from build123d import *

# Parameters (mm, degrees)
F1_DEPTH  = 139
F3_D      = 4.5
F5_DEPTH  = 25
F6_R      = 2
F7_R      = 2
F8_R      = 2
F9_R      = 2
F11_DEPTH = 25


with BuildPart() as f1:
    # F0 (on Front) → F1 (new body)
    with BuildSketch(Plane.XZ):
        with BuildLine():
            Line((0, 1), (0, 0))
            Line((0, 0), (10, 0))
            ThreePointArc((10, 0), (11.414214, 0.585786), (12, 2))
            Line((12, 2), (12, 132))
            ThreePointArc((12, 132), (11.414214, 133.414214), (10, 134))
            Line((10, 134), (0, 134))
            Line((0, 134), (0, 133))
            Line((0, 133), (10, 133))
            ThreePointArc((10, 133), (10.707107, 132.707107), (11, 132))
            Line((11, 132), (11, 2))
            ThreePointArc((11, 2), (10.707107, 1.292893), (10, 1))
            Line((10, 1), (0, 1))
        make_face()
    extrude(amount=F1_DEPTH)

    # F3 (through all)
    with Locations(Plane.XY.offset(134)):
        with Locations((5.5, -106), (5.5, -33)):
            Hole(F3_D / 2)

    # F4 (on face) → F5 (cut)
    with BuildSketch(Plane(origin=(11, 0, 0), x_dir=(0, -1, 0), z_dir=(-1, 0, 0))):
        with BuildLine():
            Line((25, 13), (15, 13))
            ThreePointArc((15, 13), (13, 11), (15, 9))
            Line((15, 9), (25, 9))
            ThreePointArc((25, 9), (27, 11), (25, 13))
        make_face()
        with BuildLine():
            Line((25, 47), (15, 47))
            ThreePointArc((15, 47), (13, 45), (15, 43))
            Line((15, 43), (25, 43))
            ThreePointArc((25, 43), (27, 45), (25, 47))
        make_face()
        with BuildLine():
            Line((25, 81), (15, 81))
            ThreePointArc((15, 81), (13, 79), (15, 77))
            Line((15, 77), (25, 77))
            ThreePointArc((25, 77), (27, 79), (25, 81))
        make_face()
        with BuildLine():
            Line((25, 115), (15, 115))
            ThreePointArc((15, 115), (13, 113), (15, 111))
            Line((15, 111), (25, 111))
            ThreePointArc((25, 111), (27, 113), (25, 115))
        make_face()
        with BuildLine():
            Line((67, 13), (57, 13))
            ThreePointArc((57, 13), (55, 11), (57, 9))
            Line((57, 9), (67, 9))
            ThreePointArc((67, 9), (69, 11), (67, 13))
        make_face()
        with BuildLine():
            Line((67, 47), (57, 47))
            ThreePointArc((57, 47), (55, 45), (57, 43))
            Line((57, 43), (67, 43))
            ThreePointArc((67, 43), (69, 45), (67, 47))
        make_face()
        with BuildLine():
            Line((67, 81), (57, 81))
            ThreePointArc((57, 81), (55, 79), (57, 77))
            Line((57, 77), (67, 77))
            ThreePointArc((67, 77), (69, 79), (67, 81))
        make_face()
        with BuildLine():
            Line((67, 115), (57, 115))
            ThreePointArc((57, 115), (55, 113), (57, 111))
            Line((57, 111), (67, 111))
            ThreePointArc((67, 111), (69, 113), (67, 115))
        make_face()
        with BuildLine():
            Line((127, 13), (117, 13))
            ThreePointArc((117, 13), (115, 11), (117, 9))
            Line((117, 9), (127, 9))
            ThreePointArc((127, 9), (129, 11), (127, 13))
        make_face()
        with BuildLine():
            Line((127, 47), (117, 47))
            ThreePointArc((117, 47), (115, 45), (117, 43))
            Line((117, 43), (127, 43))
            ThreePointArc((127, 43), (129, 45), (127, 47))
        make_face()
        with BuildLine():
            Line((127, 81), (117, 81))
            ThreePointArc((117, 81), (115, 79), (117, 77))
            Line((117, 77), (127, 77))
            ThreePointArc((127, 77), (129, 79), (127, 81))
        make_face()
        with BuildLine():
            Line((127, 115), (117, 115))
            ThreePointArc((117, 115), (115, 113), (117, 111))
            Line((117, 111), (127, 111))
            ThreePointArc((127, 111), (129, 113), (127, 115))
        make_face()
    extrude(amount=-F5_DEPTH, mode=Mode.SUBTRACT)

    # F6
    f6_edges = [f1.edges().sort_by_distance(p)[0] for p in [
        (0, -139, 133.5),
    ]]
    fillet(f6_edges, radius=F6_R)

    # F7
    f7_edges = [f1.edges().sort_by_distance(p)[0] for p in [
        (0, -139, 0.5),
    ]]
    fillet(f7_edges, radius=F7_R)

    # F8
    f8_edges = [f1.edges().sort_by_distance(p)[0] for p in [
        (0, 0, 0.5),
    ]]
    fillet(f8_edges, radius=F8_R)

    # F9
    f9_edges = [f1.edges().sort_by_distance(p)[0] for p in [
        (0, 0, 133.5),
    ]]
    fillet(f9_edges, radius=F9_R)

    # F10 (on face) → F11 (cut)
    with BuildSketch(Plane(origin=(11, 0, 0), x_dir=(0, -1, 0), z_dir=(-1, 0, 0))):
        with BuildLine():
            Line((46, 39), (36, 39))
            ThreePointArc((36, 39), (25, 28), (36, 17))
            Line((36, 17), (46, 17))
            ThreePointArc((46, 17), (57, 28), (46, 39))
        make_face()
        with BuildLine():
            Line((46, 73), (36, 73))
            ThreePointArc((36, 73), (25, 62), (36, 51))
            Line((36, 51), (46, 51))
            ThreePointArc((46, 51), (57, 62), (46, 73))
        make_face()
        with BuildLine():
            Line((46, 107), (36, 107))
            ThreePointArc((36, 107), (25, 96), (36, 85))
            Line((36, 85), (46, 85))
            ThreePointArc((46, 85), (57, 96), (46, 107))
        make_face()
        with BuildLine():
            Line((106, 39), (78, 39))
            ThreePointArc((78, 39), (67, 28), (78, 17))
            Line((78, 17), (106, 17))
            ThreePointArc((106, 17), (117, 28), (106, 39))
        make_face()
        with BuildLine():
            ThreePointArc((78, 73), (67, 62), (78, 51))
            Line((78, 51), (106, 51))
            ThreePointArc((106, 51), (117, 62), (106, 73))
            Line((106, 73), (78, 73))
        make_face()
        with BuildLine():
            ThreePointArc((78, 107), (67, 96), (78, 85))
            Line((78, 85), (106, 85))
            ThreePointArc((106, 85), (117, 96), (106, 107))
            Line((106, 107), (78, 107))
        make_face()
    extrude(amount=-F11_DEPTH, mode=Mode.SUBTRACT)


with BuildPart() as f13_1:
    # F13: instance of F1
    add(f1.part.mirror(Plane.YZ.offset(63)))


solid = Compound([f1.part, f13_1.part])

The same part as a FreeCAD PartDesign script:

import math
import FreeCAD as App
import Part
import Sketcher

V = App.Vector
Q = App.Units.Quantity


def edges_at(feature, points):
    """Names of the edges that pass closest to the given points."""
    edges = feature.Shape.Edges
    near = lambda p: min(range(len(edges)), key=lambda i: edges[i].distToShape(Part.Vertex(*p))[0])
    return sorted({f"Edge{near(p) + 1}" for p in points})

doc = App.newDocument("Part")
body = doc.addObject("PartDesign::Body", "Body")

# Sketch on XZ plane
sketch1 = doc.addObject("Sketcher::SketchObject", "Sketch")
body.addObject(sketch1)
sketch1.AttachmentSupport = (doc.XZ_Plane, [""])
sketch1.MapMode = "FlatFace"
sketch1.addGeometry(Part.LineSegment(V(0, 1, 0), V(0, 0, 0)), False)
sketch1.addGeometry(Part.LineSegment(V(0, 0, 0), V(10, 0, 0)), False)
sketch1.addGeometry(Part.ArcOfCircle(Part.Circle(V(10.000001, 1.999999, 0), V(0, 0, 1), 1.999999), math.radians(-90.000043), math.radians(0.000043)), False)
sketch1.addGeometry(Part.LineSegment(V(12, 2, 0), V(12, 132, 0)), False)
sketch1.addGeometry(Part.ArcOfCircle(Part.Circle(V(10.000001, 132.000001, 0), V(0, 0, 1), 1.999999), math.radians(-0.000043), math.radians(90.000043)), False)
sketch1.addGeometry(Part.LineSegment(V(10, 134, 0), V(0, 134, 0)), False)
sketch1.addGeometry(Part.LineSegment(V(0, 134, 0), V(0, 133, 0)), False)
sketch1.addGeometry(Part.LineSegment(V(0, 133, 0), V(10, 133, 0)), False)
sketch1.addGeometry(Part.ArcOfCircle(Part.Circle(V(10.000001, 132.000001, 0), V(0, 0, 1), 0.999999), math.radians(-0.000043), math.radians(90.000043)), False)
sketch1.addGeometry(Part.LineSegment(V(11, 132, 0), V(11, 2, 0)), False)
sketch1.addGeometry(Part.ArcOfCircle(Part.Circle(V(10.000001, 1.999999, 0), V(0, 0, 1), 0.999999), math.radians(-90.000043), math.radians(0.000043)), False)
sketch1.addGeometry(Part.LineSegment(V(10, 1, 0), V(0, 1, 0)), False)
sketch1.addConstraint(Sketcher.Constraint("Coincident", 0, 2, 1, 1))
sketch1.addConstraint(Sketcher.Constraint("Tangent", 1, 2, 2, 1))
sketch1.addConstraint(Sketcher.Constraint("Tangent", 2, 2, 3, 1))
sketch1.addConstraint(Sketcher.Constraint("Tangent", 3, 2, 4, 1))
sketch1.addConstraint(Sketcher.Constraint("Tangent", 4, 2, 5, 1))
sketch1.addConstraint(Sketcher.Constraint("Coincident", 5, 2, 6, 1))
sketch1.addConstraint(Sketcher.Constraint("Coincident", 6, 2, 7, 1))
sketch1.addConstraint(Sketcher.Constraint("Tangent", 7, 2, 8, 2))
sketch1.addConstraint(Sketcher.Constraint("Tangent", 8, 1, 9, 1))
sketch1.addConstraint(Sketcher.Constraint("Tangent", 9, 2, 10, 2))
sketch1.addConstraint(Sketcher.Constraint("Tangent", 10, 1, 11, 1))
sketch1.addConstraint(Sketcher.Constraint("Coincident", 11, 2, 0, 1))
sketch1.addConstraint(Sketcher.Constraint("Vertical", 0))
sketch1.addConstraint(Sketcher.Constraint("Horizontal", 1))
sketch1.addConstraint(Sketcher.Constraint("Vertical", 3))
sketch1.addConstraint(Sketcher.Constraint("Horizontal", 5))
sketch1.addConstraint(Sketcher.Constraint("Vertical", 6))
sketch1.addConstraint(Sketcher.Constraint("Horizontal", 7))
sketch1.addConstraint(Sketcher.Constraint("Vertical", 9))
sketch1.addConstraint(Sketcher.Constraint("Horizontal", 11))
sketch1.addConstraint(Sketcher.Constraint("Coincident", 0, 2, -1, 1))
sketch1.addConstraint(Sketcher.Constraint("Coincident", 8, 3, 4, 3))
sketch1.addConstraint(Sketcher.Constraint("Coincident", 10, 3, 2, 3))
sketch1.addConstraint(Sketcher.Constraint("Equal", 2, 4))
sketch1.addConstraint(Sketcher.Constraint("PointOnObject", 5, 2, -2))
sketch1.addConstraint(Sketcher.Constraint("Radius", 2, Q("1.999999 mm")))
sketch1.addConstraint(Sketcher.Constraint("Radius", 8, Q("0.999999 mm")))
sketch1.addConstraint(Sketcher.Constraint("DistanceX", 1, 1, 1, 2, Q("10 mm")))
sketch1.addConstraint(Sketcher.Constraint("DistanceY", 3, 1, 3, 2, Q("130 mm")))
pad1 = doc.addObject("PartDesign::Pad", "Pad")
body.addObject(pad1)
pad1.Profile = sketch1
pad1.Length = 139

# Sketch on XY plane
sketch2 = doc.addObject("Sketcher::SketchObject", "Sketch001")
body.addObject(sketch2)
sketch2.AttachmentSupport = (doc.XY_Plane, [""])
sketch2.MapMode = "FlatFace"
sketch2.AttachmentOffset = App.Placement(V(0, 0, 134), App.Rotation())
sketch2.addGeometry(Part.Circle(V(5.5, -106, 0), V(0, 0, 1), 2.25), False)
sketch2.addGeometry(Part.Circle(V(5.5, -33, 0), V(0, 0, 1), 2.25), False)
sketch2.addConstraint(Sketcher.Constraint("Equal", 0, 1))
sketch2.addConstraint(Sketcher.Constraint("Vertical", 0, 3, 1, 3))
sketch2.addConstraint(Sketcher.Constraint("Diameter", 0, Q("4.5 mm")))
sketch2.addConstraint(Sketcher.Constraint("DistanceY", 0, 3, -1, 1, Q("106 mm")))
sketch2.addConstraint(Sketcher.Constraint("DistanceY", 1, 3, -1, 1, Q("33 mm")))
sketch2.addConstraint(Sketcher.Constraint("DistanceX", -1, 1, 0, 3, Q("5.5 mm")))
doc.recompute()
hole = doc.addObject("PartDesign::Hole", "Hole")
body.addObject(hole)
hole.Profile = sketch2
hole.ThreadType = "None"
hole.Diameter = 4.5
hole.DepthType = "ThroughAll"

# Sketch on YZ plane
sketch3 = doc.addObject("Sketcher::SketchObject", "Sketch002")
body.addObject(sketch3)
sketch3.AttachmentSupport = (doc.YZ_Plane, [""])
sketch3.MapMode = "FlatFace"
sketch3.AttachmentOffset = App.Placement(V(0, 0, 11), App.Rotation())
sketch3.addGeometry(Part.LineSegment(V(-25, 13, 0), V(-15, 13, 0)), False)
sketch3.addGeometry(Part.ArcOfCircle(Part.Circle(V(-15, 11, 0), V(0, 0, 1), 2), math.radians(-90), math.radians(90)), False)
sketch3.addGeometry(Part.LineSegment(V(-15, 9, 0), V(-25, 9, 0)), False)
sketch3.addGeometry(Part.ArcOfCircle(Part.Circle(V(-25, 11, 0), V(0, 0, 1), 2), math.radians(90), math.radians(270)), False)
sketch3.addGeometry(Part.LineSegment(V(-25, 47, 0), V(-15, 47, 0)), False)
sketch3.addGeometry(Part.ArcOfCircle(Part.Circle(V(-15, 45, 0), V(0, 0, 1), 2), math.radians(-90), math.radians(90)), False)
sketch3.addGeometry(Part.LineSegment(V(-15, 43, 0), V(-25, 43, 0)), False)
sketch3.addGeometry(Part.ArcOfCircle(Part.Circle(V(-25, 45, 0), V(0, 0, 1), 2), math.radians(90), math.radians(270)), False)
sketch3.addGeometry(Part.LineSegment(V(-25, 81, 0), V(-15, 81, 0)), False)
sketch3.addGeometry(Part.ArcOfCircle(Part.Circle(V(-15, 79, 0), V(0, 0, 1), 2), math.radians(-90), math.radians(90)), False)
sketch3.addGeometry(Part.LineSegment(V(-15, 77, 0), V(-25, 77, 0)), False)
sketch3.addGeometry(Part.ArcOfCircle(Part.Circle(V(-25, 79, 0), V(0, 0, 1), 2), math.radians(90), math.radians(270)), False)
sketch3.addGeometry(Part.LineSegment(V(-25, 115, 0), V(-15, 115, 0)), False)
sketch3.addGeometry(Part.ArcOfCircle(Part.Circle(V(-15, 113, 0), V(0, 0, 1), 2), math.radians(-90), math.radians(90)), False)
sketch3.addGeometry(Part.LineSegment(V(-15, 111, 0), V(-25, 111, 0)), False)
sketch3.addGeometry(Part.ArcOfCircle(Part.Circle(V(-25, 113, 0), V(0, 0, 1), 2), math.radians(90), math.radians(270)), False)
sketch3.addGeometry(Part.LineSegment(V(-67, 13, 0), V(-57, 13, 0)), False)
sketch3.addGeometry(Part.ArcOfCircle(Part.Circle(V(-57, 11, 0), V(0, 0, 1), 2), math.radians(-90), math.radians(90)), False)
sketch3.addGeometry(Part.LineSegment(V(-57, 9, 0), V(-67, 9, 0)), False)
sketch3.addGeometry(Part.ArcOfCircle(Part.Circle(V(-67, 11, 0), V(0, 0, 1), 2), math.radians(90), math.radians(270)), False)
sketch3.addGeometry(Part.LineSegment(V(-67, 47, 0), V(-57, 47, 0)), False)
sketch3.addGeometry(Part.ArcOfCircle(Part.Circle(V(-57, 45, 0), V(0, 0, 1), 2), math.radians(-90), math.radians(90)), False)
sketch3.addGeometry(Part.LineSegment(V(-57, 43, 0), V(-67, 43, 0)), False)
sketch3.addGeometry(Part.ArcOfCircle(Part.Circle(V(-67, 45, 0), V(0, 0, 1), 2), math.radians(90), math.radians(270)), False)
sketch3.addGeometry(Part.LineSegment(V(-67, 81, 0), V(-57, 81, 0)), False)
sketch3.addGeometry(Part.ArcOfCircle(Part.Circle(V(-57, 79, 0), V(0, 0, 1), 2), math.radians(-90), math.radians(90)), False)
sketch3.addGeometry(Part.LineSegment(V(-57, 77, 0), V(-67, 77, 0)), False)
sketch3.addGeometry(Part.ArcOfCircle(Part.Circle(V(-67, 79, 0), V(0, 0, 1), 2), math.radians(90), math.radians(270)), False)
sketch3.addGeometry(Part.LineSegment(V(-67, 115, 0), V(-57, 115, 0)), False)
sketch3.addGeometry(Part.ArcOfCircle(Part.Circle(V(-57, 113, 0), V(0, 0, 1), 2), math.radians(-90), math.radians(90)), False)
sketch3.addGeometry(Part.LineSegment(V(-57, 111, 0), V(-67, 111, 0)), False)
sketch3.addGeometry(Part.ArcOfCircle(Part.Circle(V(-67, 113, 0), V(0, 0, 1), 2), math.radians(90), math.radians(270)), False)
sketch3.addGeometry(Part.LineSegment(V(-127, 13, 0), V(-117, 13, 0)), False)
sketch3.addGeometry(Part.ArcOfCircle(Part.Circle(V(-117, 11, 0), V(0, 0, 1), 2), math.radians(-90), math.radians(90)), False)
sketch3.addGeometry(Part.LineSegment(V(-117, 9, 0), V(-127, 9, 0)), False)
sketch3.addGeometry(Part.ArcOfCircle(Part.Circle(V(-127, 11, 0), V(0, 0, 1), 2), math.radians(90), math.radians(270)), False)
sketch3.addGeometry(Part.LineSegment(V(-127, 47, 0), V(-117, 47, 0)), False)
sketch3.addGeometry(Part.ArcOfCircle(Part.Circle(V(-117, 45, 0), V(0, 0, 1), 2), math.radians(-90), math.radians(90)), False)
sketch3.addGeometry(Part.LineSegment(V(-117, 43, 0), V(-127, 43, 0)), False)
sketch3.addGeometry(Part.ArcOfCircle(Part.Circle(V(-127, 45, 0), V(0, 0, 1), 2), math.radians(90), math.radians(270)), False)
sketch3.addGeometry(Part.LineSegment(V(-127, 81, 0), V(-117, 81, 0)), False)
sketch3.addGeometry(Part.ArcOfCircle(Part.Circle(V(-117, 79, 0), V(0, 0, 1), 2), math.radians(-90), math.radians(90)), False)
sketch3.addGeometry(Part.LineSegment(V(-117, 77, 0), V(-127, 77, 0)), False)
sketch3.addGeometry(Part.ArcOfCircle(Part.Circle(V(-127, 79, 0), V(0, 0, 1), 2), math.radians(90), math.radians(270)), False)
sketch3.addGeometry(Part.LineSegment(V(-127, 115, 0), V(-117, 115, 0)), False)
sketch3.addGeometry(Part.ArcOfCircle(Part.Circle(V(-117, 113, 0), V(0, 0, 1), 2), math.radians(-90), math.radians(90)), False)
sketch3.addGeometry(Part.LineSegment(V(-117, 111, 0), V(-127, 111, 0)), False)
sketch3.addGeometry(Part.ArcOfCircle(Part.Circle(V(-127, 113, 0), V(0, 0, 1), 2), math.radians(90), math.radians(270)), False)
sketch3.addConstraint(Sketcher.Constraint("Tangent", 0, 2, 1, 2))
sketch3.addConstraint(Sketcher.Constraint("Tangent", 1, 1, 2, 1))
sketch3.addConstraint(Sketcher.Constraint("Tangent", 2, 2, 3, 2))
sketch3.addConstraint(Sketcher.Constraint("Tangent", 3, 1, 0, 1))
sketch3.addConstraint(Sketcher.Constraint("Tangent", 4, 2, 5, 2))
sketch3.addConstraint(Sketcher.Constraint("Tangent", 5, 1, 6, 1))
sketch3.addConstraint(Sketcher.Constraint("Tangent", 6, 2, 7, 2))
sketch3.addConstraint(Sketcher.Constraint("Tangent", 7, 1, 4, 1))
sketch3.addConstraint(Sketcher.Constraint("Tangent", 8, 2, 9, 2))
sketch3.addConstraint(Sketcher.Constraint("Tangent", 9, 1, 10, 1))
sketch3.addConstraint(Sketcher.Constraint("Tangent", 10, 2, 11, 2))
sketch3.addConstraint(Sketcher.Constraint("Tangent", 11, 1, 8, 1))
sketch3.addConstraint(Sketcher.Constraint("Tangent", 12, 2, 13, 2))
sketch3.addConstraint(Sketcher.Constraint("Tangent", 13, 1, 14, 1))
sketch3.addConstraint(Sketcher.Constraint("Tangent", 14, 2, 15, 2))
sketch3.addConstraint(Sketcher.Constraint("Tangent", 15, 1, 12, 1))
sketch3.addConstraint(Sketcher.Constraint("Tangent", 16, 2, 17, 2))
sketch3.addConstraint(Sketcher.Constraint("Tangent", 17, 1, 18, 1))
sketch3.addConstraint(Sketcher.Constraint("Tangent", 18, 2, 19, 2))
sketch3.addConstraint(Sketcher.Constraint("Tangent", 19, 1, 16, 1))
sketch3.addConstraint(Sketcher.Constraint("Tangent", 20, 2, 21, 2))
sketch3.addConstraint(Sketcher.Constraint("Tangent", 21, 1, 22, 1))
sketch3.addConstraint(Sketcher.Constraint("Tangent", 22, 2, 23, 2))
sketch3.addConstraint(Sketcher.Constraint("Tangent", 23, 1, 20, 1))
sketch3.addConstraint(Sketcher.Constraint("Tangent", 24, 2, 25, 2))
sketch3.addConstraint(Sketcher.Constraint("Tangent", 25, 1, 26, 1))
sketch3.addConstraint(Sketcher.Constraint("Tangent", 26, 2, 27, 2))
sketch3.addConstraint(Sketcher.Constraint("Tangent", 27, 1, 24, 1))
sketch3.addConstraint(Sketcher.Constraint("Tangent", 28, 2, 29, 2))
sketch3.addConstraint(Sketcher.Constraint("Tangent", 29, 1, 30, 1))
sketch3.addConstraint(Sketcher.Constraint("Tangent", 30, 2, 31, 2))
sketch3.addConstraint(Sketcher.Constraint("Tangent", 31, 1, 28, 1))
sketch3.addConstraint(Sketcher.Constraint("Tangent", 32, 2, 33, 2))
sketch3.addConstraint(Sketcher.Constraint("Tangent", 33, 1, 34, 1))
sketch3.addConstraint(Sketcher.Constraint("Tangent", 34, 2, 35, 2))
sketch3.addConstraint(Sketcher.Constraint("Tangent", 35, 1, 32, 1))
sketch3.addConstraint(Sketcher.Constraint("Tangent", 36, 2, 37, 2))
sketch3.addConstraint(Sketcher.Constraint("Tangent", 37, 1, 38, 1))
sketch3.addConstraint(Sketcher.Constraint("Tangent", 38, 2, 39, 2))
sketch3.addConstraint(Sketcher.Constraint("Tangent", 39, 1, 36, 1))
sketch3.addConstraint(Sketcher.Constraint("Tangent", 40, 2, 41, 2))
sketch3.addConstraint(Sketcher.Constraint("Tangent", 41, 1, 42, 1))
sketch3.addConstraint(Sketcher.Constraint("Tangent", 42, 2, 43, 2))
sketch3.addConstraint(Sketcher.Constraint("Tangent", 43, 1, 40, 1))
sketch3.addConstraint(Sketcher.Constraint("Tangent", 44, 2, 45, 2))
sketch3.addConstraint(Sketcher.Constraint("Tangent", 45, 1, 46, 1))
sketch3.addConstraint(Sketcher.Constraint("Tangent", 46, 2, 47, 2))
sketch3.addConstraint(Sketcher.Constraint("Tangent", 47, 1, 44, 1))
sketch3.addConstraint(Sketcher.Constraint("Horizontal", 0))
sketch3.addConstraint(Sketcher.Constraint("Horizontal", 2))
sketch3.addConstraint(Sketcher.Constraint("Horizontal", 4))
sketch3.addConstraint(Sketcher.Constraint("Horizontal", 6))
sketch3.addConstraint(Sketcher.Constraint("Horizontal", 8))
sketch3.addConstraint(Sketcher.Constraint("Horizontal", 10))
sketch3.addConstraint(Sketcher.Constraint("Horizontal", 12))
sketch3.addConstraint(Sketcher.Constraint("Horizontal", 14))
sketch3.addConstraint(Sketcher.Constraint("Horizontal", 16))
sketch3.addConstraint(Sketcher.Constraint("Horizontal", 18))
sketch3.addConstraint(Sketcher.Constraint("Horizontal", 20))
sketch3.addConstraint(Sketcher.Constraint("Horizontal", 22))
sketch3.addConstraint(Sketcher.Constraint("Horizontal", 24))
sketch3.addConstraint(Sketcher.Constraint("Horizontal", 26))
sketch3.addConstraint(Sketcher.Constraint("Horizontal", 28))
sketch3.addConstraint(Sketcher.Constraint("Horizontal", 30))
sketch3.addConstraint(Sketcher.Constraint("Horizontal", 32))
sketch3.addConstraint(Sketcher.Constraint("Horizontal", 34))
sketch3.addConstraint(Sketcher.Constraint("Horizontal", 36))
sketch3.addConstraint(Sketcher.Constraint("Horizontal", 38))
sketch3.addConstraint(Sketcher.Constraint("Horizontal", 40))
sketch3.addConstraint(Sketcher.Constraint("Horizontal", 42))
sketch3.addConstraint(Sketcher.Constraint("Horizontal", 44))
sketch3.addConstraint(Sketcher.Constraint("Horizontal", 46))
sketch3.addConstraint(Sketcher.Constraint("Equal", 3, 5))
sketch3.addConstraint(Sketcher.Constraint("Equal", 7, 9))
sketch3.addConstraint(Sketcher.Constraint("Equal", 11, 13))
sketch3.addConstraint(Sketcher.Constraint("Equal", 15, 17))
sketch3.addConstraint(Sketcher.Constraint("Equal", 19, 21))
sketch3.addConstraint(Sketcher.Constraint("Equal", 23, 25))
sketch3.addConstraint(Sketcher.Constraint("Equal", 27, 29))
sketch3.addConstraint(Sketcher.Constraint("Equal", 31, 33))
sketch3.addConstraint(Sketcher.Constraint("Equal", 35, 37))
sketch3.addConstraint(Sketcher.Constraint("Equal", 39, 41))
sketch3.addConstraint(Sketcher.Constraint("Equal", 43, 45))
sketch3.addConstraint(Sketcher.Constraint("Horizontal", 3, 3, 17, 3))
sketch3.addConstraint(Sketcher.Constraint("Horizontal", 7, 3, 21, 3))
sketch3.addConstraint(Sketcher.Constraint("Horizontal", 11, 3, 25, 3))
sketch3.addConstraint(Sketcher.Constraint("Horizontal", 15, 3, 29, 3))
sketch3.addConstraint(Sketcher.Constraint("Horizontal", 19, 3, 33, 3))
sketch3.addConstraint(Sketcher.Constraint("Horizontal", 23, 3, 37, 3))
sketch3.addConstraint(Sketcher.Constraint("Horizontal", 27, 3, 41, 3))
sketch3.addConstraint(Sketcher.Constraint("Horizontal", 31, 3, 45, 3))
sketch3.addConstraint(Sketcher.Constraint("Vertical", 1, 3, 5, 3))
sketch3.addConstraint(Sketcher.Constraint("Vertical", 3, 3, 7, 3))
sketch3.addConstraint(Sketcher.Constraint("Vertical", 5, 3, 9, 3))
sketch3.addConstraint(Sketcher.Constraint("Vertical", 7, 3, 11, 3))
sketch3.addConstraint(Sketcher.Constraint("Vertical", 9, 3, 13, 3))
sketch3.addConstraint(Sketcher.Constraint("Vertical", 11, 3, 15, 3))
sketch3.addConstraint(Sketcher.Constraint("Vertical", 17, 3, 21, 3))
sketch3.addConstraint(Sketcher.Constraint("Vertical", 19, 3, 23, 3))
sketch3.addConstraint(Sketcher.Constraint("Vertical", 21, 3, 25, 3))
sketch3.addConstraint(Sketcher.Constraint("Vertical", 23, 3, 27, 3))
sketch3.addConstraint(Sketcher.Constraint("Vertical", 25, 3, 29, 3))
sketch3.addConstraint(Sketcher.Constraint("Vertical", 27, 3, 31, 3))
sketch3.addConstraint(Sketcher.Constraint("Vertical", 33, 3, 37, 3))
sketch3.addConstraint(Sketcher.Constraint("Vertical", 35, 3, 39, 3))
sketch3.addConstraint(Sketcher.Constraint("Vertical", 37, 3, 41, 3))
sketch3.addConstraint(Sketcher.Constraint("Vertical", 39, 3, 43, 3))
sketch3.addConstraint(Sketcher.Constraint("Vertical", 41, 3, 45, 3))
sketch3.addConstraint(Sketcher.Constraint("Vertical", 43, 3, 47, 3))
sketch3.addConstraint(Sketcher.Constraint("Equal", 14, 16))
sketch3.addConstraint(Sketcher.Constraint("Equal", 30, 32))
sketch3.addConstraint(Sketcher.Constraint("Radius", 1, Q("2 mm")))
sketch3.addConstraint(Sketcher.Constraint("DistanceX", 0, 1, 0, 2, Q("10 mm")))
sketch3.addConstraint(Sketcher.Constraint("DistanceX", 1, 3, -1, 1, Q("15 mm")))
sketch3.addConstraint(Sketcher.Constraint("DistanceY", -1, 1, 1, 3, Q("11 mm")))
sketch3.addConstraint(Sketcher.Constraint("DistanceY", -1, 1, 5, 3, Q("45 mm")))
sketch3.addConstraint(Sketcher.Constraint("DistanceY", -1, 1, 9, 3, Q("79 mm")))
sketch3.addConstraint(Sketcher.Constraint("DistanceY", -1, 1, 13, 3, Q("113 mm")))
sketch3.addConstraint(Sketcher.Constraint("DistanceX", 17, 3, -1, 1, Q("57 mm")))
sketch3.addConstraint(Sketcher.Constraint("DistanceX", 33, 3, -1, 1, Q("117 mm")))
pocket1 = doc.addObject("PartDesign::Pocket", "Pocket")
body.addObject(pocket1)
pocket1.Profile = sketch3
pocket1.Length = 25
pocket1.Reversed = True
doc.recompute()

fillet = doc.addObject("PartDesign::Fillet", "Fillet")
body.addObject(fillet)
fillet.Base = (pocket1, edges_at(pocket1, [(0, -139, 133.5)]))
fillet.Radius = 2
doc.recompute()

fillet2 = doc.addObject("PartDesign::Fillet", "Fillet001")
body.addObject(fillet2)
fillet2.Base = (fillet, edges_at(fillet, [(0, -139, 0.5)]))
fillet2.Radius = 2
doc.recompute()

fillet3 = doc.addObject("PartDesign::Fillet", "Fillet002")
body.addObject(fillet3)
fillet3.Base = (fillet2, edges_at(fillet2, [(0, 0, 0.5)]))
fillet3.Radius = 2
doc.recompute()

fillet4 = doc.addObject("PartDesign::Fillet", "Fillet003")
body.addObject(fillet4)
fillet4.Base = (fillet3, edges_at(fillet3, [(0, 0, 133.5)]))
fillet4.Radius = 2

# Sketch on YZ plane
sketch4 = doc.addObject("Sketcher::SketchObject", "Sketch003")
body.addObject(sketch4)
sketch4.AttachmentSupport = (doc.YZ_Plane, [""])
sketch4.MapMode = "FlatFace"
sketch4.AttachmentOffset = App.Placement(V(0, 0, 11), App.Rotation())
sketch4.addGeometry(Part.LineSegment(V(-46, 39, 0), V(-36, 39, 0)), False)
sketch4.addGeometry(Part.ArcOfCircle(Part.Circle(V(-36, 28, 0), V(0, 0, 1), 11), math.radians(-90), math.radians(90)), False)
sketch4.addGeometry(Part.LineSegment(V(-36, 17, 0), V(-46, 17, 0)), False)
sketch4.addGeometry(Part.ArcOfCircle(Part.Circle(V(-46, 28, 0), V(0, 0, 1), 11), math.radians(90), math.radians(270)), False)
sketch4.addGeometry(Part.LineSegment(V(-46, 73, 0), V(-36, 73, 0)), False)
sketch4.addGeometry(Part.ArcOfCircle(Part.Circle(V(-36, 62, 0), V(0, 0, 1), 11), math.radians(-90), math.radians(90)), False)
sketch4.addGeometry(Part.LineSegment(V(-36, 51, 0), V(-46, 51, 0)), False)
sketch4.addGeometry(Part.ArcOfCircle(Part.Circle(V(-46, 62, 0), V(0, 0, 1), 11), math.radians(90), math.radians(270)), False)
sketch4.addGeometry(Part.LineSegment(V(-46, 107, 0), V(-36, 107, 0)), False)
sketch4.addGeometry(Part.ArcOfCircle(Part.Circle(V(-36, 96, 0), V(0, 0, 1), 11), math.radians(-90), math.radians(90)), False)
sketch4.addGeometry(Part.LineSegment(V(-36, 85, 0), V(-46, 85, 0)), False)
sketch4.addGeometry(Part.ArcOfCircle(Part.Circle(V(-46, 96, 0), V(0, 0, 1), 11), math.radians(90), math.radians(270)), False)
sketch4.addGeometry(Part.LineSegment(V(-106, 39, 0), V(-78, 39, 0)), False)
sketch4.addGeometry(Part.ArcOfCircle(Part.Circle(V(-78, 28, 0), V(0, 0, 1), 11), math.radians(-90), math.radians(90)), False)
sketch4.addGeometry(Part.LineSegment(V(-78, 17, 0), V(-106, 17, 0)), False)
sketch4.addGeometry(Part.ArcOfCircle(Part.Circle(V(-106, 28, 0), V(0, 0, 1), 11), math.radians(90), math.radians(270)), False)
sketch4.addGeometry(Part.ArcOfCircle(Part.Circle(V(-78, 62, 0), V(0, 0, 1), 11), math.radians(-90), math.radians(90)), False)
sketch4.addGeometry(Part.LineSegment(V(-78, 51, 0), V(-106, 51, 0)), False)
sketch4.addGeometry(Part.ArcOfCircle(Part.Circle(V(-106, 62, 0), V(0, 0, 1), 11), math.radians(90), math.radians(270)), False)
sketch4.addGeometry(Part.LineSegment(V(-106, 73, 0), V(-78, 73, 0)), False)
sketch4.addGeometry(Part.ArcOfCircle(Part.Circle(V(-78, 96, 0), V(0, 0, 1), 11), math.radians(-90), math.radians(90)), False)
sketch4.addGeometry(Part.LineSegment(V(-78, 85, 0), V(-106, 85, 0)), False)
sketch4.addGeometry(Part.ArcOfCircle(Part.Circle(V(-106, 96, 0), V(0, 0, 1), 11), math.radians(90), math.radians(270)), False)
sketch4.addGeometry(Part.LineSegment(V(-106, 107, 0), V(-78, 107, 0)), False)
sketch4.addConstraint(Sketcher.Constraint("Tangent", 0, 2, 1, 2))
sketch4.addConstraint(Sketcher.Constraint("Tangent", 1, 1, 2, 1))
sketch4.addConstraint(Sketcher.Constraint("Tangent", 2, 2, 3, 2))
sketch4.addConstraint(Sketcher.Constraint("Tangent", 3, 1, 0, 1))
sketch4.addConstraint(Sketcher.Constraint("Tangent", 4, 2, 5, 2))
sketch4.addConstraint(Sketcher.Constraint("Tangent", 5, 1, 6, 1))
sketch4.addConstraint(Sketcher.Constraint("Tangent", 6, 2, 7, 2))
sketch4.addConstraint(Sketcher.Constraint("Tangent", 7, 1, 4, 1))
sketch4.addConstraint(Sketcher.Constraint("Tangent", 8, 2, 9, 2))
sketch4.addConstraint(Sketcher.Constraint("Tangent", 9, 1, 10, 1))
sketch4.addConstraint(Sketcher.Constraint("Tangent", 10, 2, 11, 2))
sketch4.addConstraint(Sketcher.Constraint("Tangent", 11, 1, 8, 1))
sketch4.addConstraint(Sketcher.Constraint("Tangent", 12, 2, 13, 2))
sketch4.addConstraint(Sketcher.Constraint("Tangent", 13, 1, 14, 1))
sketch4.addConstraint(Sketcher.Constraint("Tangent", 14, 2, 15, 2))
sketch4.addConstraint(Sketcher.Constraint("Tangent", 15, 1, 12, 1))
sketch4.addConstraint(Sketcher.Constraint("Tangent", 16, 1, 17, 1))
sketch4.addConstraint(Sketcher.Constraint("Tangent", 17, 2, 18, 2))
sketch4.addConstraint(Sketcher.Constraint("Tangent", 18, 1, 19, 1))
sketch4.addConstraint(Sketcher.Constraint("Tangent", 19, 2, 16, 2))
sketch4.addConstraint(Sketcher.Constraint("Tangent", 20, 1, 21, 1))
sketch4.addConstraint(Sketcher.Constraint("Tangent", 21, 2, 22, 2))
sketch4.addConstraint(Sketcher.Constraint("Tangent", 22, 1, 23, 1))
sketch4.addConstraint(Sketcher.Constraint("Tangent", 23, 2, 20, 2))
sketch4.addConstraint(Sketcher.Constraint("Horizontal", 0))
sketch4.addConstraint(Sketcher.Constraint("Horizontal", 2))
sketch4.addConstraint(Sketcher.Constraint("Horizontal", 4))
sketch4.addConstraint(Sketcher.Constraint("Horizontal", 6))
sketch4.addConstraint(Sketcher.Constraint("Horizontal", 8))
sketch4.addConstraint(Sketcher.Constraint("Horizontal", 10))
sketch4.addConstraint(Sketcher.Constraint("Horizontal", 12))
sketch4.addConstraint(Sketcher.Constraint("Horizontal", 14))
sketch4.addConstraint(Sketcher.Constraint("Horizontal", 17))
sketch4.addConstraint(Sketcher.Constraint("Horizontal", 19))
sketch4.addConstraint(Sketcher.Constraint("Horizontal", 21))
sketch4.addConstraint(Sketcher.Constraint("Horizontal", 23))
sketch4.addConstraint(Sketcher.Constraint("Equal", 3, 5))
sketch4.addConstraint(Sketcher.Constraint("Equal", 7, 9))
sketch4.addConstraint(Sketcher.Constraint("Equal", 11, 13))
sketch4.addConstraint(Sketcher.Constraint("Equal", 15, 16))
sketch4.addConstraint(Sketcher.Constraint("Equal", 18, 20))
sketch4.addConstraint(Sketcher.Constraint("Horizontal", 3, 3, 13, 3))
sketch4.addConstraint(Sketcher.Constraint("Horizontal", 7, 3, 16, 3))
sketch4.addConstraint(Sketcher.Constraint("Horizontal", 11, 3, 20, 3))
sketch4.addConstraint(Sketcher.Constraint("Vertical", 1, 3, 5, 3))
sketch4.addConstraint(Sketcher.Constraint("Vertical", 3, 3, 7, 3))
sketch4.addConstraint(Sketcher.Constraint("Vertical", 5, 3, 9, 3))
sketch4.addConstraint(Sketcher.Constraint("Vertical", 7, 3, 11, 3))
sketch4.addConstraint(Sketcher.Constraint("Vertical", 13, 3, 16, 3))
sketch4.addConstraint(Sketcher.Constraint("Vertical", 15, 3, 18, 3))
sketch4.addConstraint(Sketcher.Constraint("Vertical", 16, 3, 20, 3))
sketch4.addConstraint(Sketcher.Constraint("Vertical", 18, 3, 22, 3))
sketch4.addConstraint(Sketcher.Constraint("Radius", 1, Q("11 mm")))
sketch4.addConstraint(Sketcher.Constraint("DistanceX", 0, 1, 0, 2, Q("10 mm")))
sketch4.addConstraint(Sketcher.Constraint("DistanceX", 12, 1, 12, 2, Q("28 mm")))
sketch4.addConstraint(Sketcher.Constraint("DistanceX", 1, 3, -1, 1, Q("36 mm")))
sketch4.addConstraint(Sketcher.Constraint("DistanceY", -1, 1, 1, 3, Q("28 mm")))
sketch4.addConstraint(Sketcher.Constraint("DistanceY", -1, 1, 5, 3, Q("62 mm")))
sketch4.addConstraint(Sketcher.Constraint("DistanceY", -1, 1, 9, 3, Q("96 mm")))
sketch4.addConstraint(Sketcher.Constraint("DistanceX", 13, 3, -1, 1, Q("78 mm")))
pocket2 = doc.addObject("PartDesign::Pocket", "Pocket001")
body.addObject(pocket2)
pocket2.Profile = sketch4
pocket2.Length = 25
pocket2.Reversed = True
body2 = doc.addObject("PartDesign::Body", "Body001")
doc.recompute()

mirroring = doc.addObject("Part::Mirroring", "Mirroring")
mirroring.Source = body
mirroring.Base = V(63, 0, 0)
mirroring.Normal = V(1, 0, 0)
body2.BaseFeature = mirroring
doc.recompute()
mirroring.Visibility = False

doc.recompute()
